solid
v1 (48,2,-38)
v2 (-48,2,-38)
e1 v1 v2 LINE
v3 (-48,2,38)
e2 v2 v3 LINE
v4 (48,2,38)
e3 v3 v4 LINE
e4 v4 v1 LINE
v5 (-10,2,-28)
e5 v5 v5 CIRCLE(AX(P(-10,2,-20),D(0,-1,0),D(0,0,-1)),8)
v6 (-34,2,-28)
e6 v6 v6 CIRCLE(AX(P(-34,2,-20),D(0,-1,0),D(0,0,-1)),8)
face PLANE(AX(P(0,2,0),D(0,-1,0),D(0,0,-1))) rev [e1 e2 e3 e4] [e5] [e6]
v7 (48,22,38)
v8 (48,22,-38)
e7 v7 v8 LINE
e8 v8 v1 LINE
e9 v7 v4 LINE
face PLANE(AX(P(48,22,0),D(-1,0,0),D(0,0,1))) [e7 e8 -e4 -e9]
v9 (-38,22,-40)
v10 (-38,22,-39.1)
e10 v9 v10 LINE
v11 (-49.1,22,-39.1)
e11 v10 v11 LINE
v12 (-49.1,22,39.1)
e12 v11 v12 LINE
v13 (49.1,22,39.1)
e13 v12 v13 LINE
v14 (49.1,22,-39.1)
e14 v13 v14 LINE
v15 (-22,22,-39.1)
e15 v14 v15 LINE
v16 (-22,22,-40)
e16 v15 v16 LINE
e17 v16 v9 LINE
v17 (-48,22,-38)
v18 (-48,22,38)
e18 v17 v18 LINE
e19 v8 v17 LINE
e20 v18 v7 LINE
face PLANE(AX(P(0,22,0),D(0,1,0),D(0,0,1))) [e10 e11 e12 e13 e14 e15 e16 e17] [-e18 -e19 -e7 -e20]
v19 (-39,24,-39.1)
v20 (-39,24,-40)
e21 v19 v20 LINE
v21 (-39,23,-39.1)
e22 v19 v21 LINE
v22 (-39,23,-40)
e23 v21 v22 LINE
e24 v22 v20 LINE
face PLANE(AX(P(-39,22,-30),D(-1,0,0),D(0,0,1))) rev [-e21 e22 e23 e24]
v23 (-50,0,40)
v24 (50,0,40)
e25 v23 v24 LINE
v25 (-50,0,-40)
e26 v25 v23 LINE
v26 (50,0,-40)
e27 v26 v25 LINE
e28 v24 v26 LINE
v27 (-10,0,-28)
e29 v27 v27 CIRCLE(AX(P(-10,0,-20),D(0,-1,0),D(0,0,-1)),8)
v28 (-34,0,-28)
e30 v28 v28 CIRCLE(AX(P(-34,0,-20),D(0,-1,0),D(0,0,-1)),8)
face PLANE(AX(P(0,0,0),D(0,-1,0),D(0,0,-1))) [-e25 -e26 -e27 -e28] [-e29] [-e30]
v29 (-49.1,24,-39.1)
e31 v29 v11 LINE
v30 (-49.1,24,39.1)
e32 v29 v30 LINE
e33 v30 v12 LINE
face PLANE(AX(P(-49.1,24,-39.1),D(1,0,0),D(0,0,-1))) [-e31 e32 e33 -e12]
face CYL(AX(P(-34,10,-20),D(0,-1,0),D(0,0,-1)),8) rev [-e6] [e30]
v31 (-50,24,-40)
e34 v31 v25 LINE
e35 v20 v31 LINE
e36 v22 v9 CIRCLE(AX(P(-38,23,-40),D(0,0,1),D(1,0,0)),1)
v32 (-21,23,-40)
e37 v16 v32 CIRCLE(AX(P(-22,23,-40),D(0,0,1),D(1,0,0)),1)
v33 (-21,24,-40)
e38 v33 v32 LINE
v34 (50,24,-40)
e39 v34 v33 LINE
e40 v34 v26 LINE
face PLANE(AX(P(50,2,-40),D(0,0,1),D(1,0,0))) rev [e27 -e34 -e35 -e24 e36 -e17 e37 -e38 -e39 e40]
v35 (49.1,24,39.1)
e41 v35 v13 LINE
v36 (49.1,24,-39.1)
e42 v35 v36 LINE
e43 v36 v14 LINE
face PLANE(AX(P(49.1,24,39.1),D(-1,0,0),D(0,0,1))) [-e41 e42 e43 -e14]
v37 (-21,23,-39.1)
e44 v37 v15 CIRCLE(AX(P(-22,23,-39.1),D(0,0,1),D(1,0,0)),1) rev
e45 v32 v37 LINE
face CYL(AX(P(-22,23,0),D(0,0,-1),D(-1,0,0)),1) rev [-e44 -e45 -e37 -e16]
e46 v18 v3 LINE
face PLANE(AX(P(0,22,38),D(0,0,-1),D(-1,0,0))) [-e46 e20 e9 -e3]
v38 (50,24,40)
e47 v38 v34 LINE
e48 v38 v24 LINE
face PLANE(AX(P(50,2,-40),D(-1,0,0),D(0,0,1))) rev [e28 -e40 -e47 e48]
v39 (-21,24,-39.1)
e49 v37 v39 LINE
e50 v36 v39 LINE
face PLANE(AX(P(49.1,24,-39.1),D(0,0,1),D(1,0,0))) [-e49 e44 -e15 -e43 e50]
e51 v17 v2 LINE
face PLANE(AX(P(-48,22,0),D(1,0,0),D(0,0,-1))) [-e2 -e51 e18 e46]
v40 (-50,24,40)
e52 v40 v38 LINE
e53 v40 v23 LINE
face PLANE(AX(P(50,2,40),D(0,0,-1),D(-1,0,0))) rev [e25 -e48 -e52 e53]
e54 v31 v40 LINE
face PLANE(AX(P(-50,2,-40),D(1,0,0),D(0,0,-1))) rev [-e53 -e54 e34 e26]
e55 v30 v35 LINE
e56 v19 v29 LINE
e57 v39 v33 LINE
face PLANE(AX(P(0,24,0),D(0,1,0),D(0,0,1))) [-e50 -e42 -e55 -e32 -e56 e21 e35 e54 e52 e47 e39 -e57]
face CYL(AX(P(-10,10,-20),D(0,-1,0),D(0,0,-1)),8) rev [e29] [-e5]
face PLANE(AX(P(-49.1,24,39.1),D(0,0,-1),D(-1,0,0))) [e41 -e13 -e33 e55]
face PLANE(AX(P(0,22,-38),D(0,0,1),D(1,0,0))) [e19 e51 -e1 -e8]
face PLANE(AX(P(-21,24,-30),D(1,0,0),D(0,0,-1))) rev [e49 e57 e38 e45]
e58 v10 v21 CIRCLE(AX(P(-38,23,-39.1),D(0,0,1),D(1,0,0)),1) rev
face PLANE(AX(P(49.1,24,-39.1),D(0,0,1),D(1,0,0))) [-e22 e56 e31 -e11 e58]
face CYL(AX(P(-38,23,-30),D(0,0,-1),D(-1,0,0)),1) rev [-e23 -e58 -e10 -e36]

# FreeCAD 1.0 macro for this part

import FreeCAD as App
import Part
import Sketcher


def edges_at(feature, points):
    """Names of the edges that pass closest to the given points."""
    edges = feature.Shape.Edges
    near = lambda p: min(range(len(edges)), key=lambda i: edges[i].distToShape(Part.Vertex(*p))[0])
    return sorted({f"Edge{near(p) + 1}" for p in points})


def add_polygon(sketch, points):
    """Adds a closed chain of lines whose ends are joined by coincident constraints."""
    first, n = sketch.GeometryCount, len(points)
    for a, b in zip(points, points[1:] + points[:1]):
        sketch.addGeometry(Part.LineSegment(App.Vector(*a, 0), App.Vector(*b, 0)), False)
    for i in range(n):
        sketch.addConstraint(Sketcher.Constraint("Coincident", first + i, 2, first + (i + 1) % n, 1))

doc = App.newDocument("Part")
body = doc.addObject("PartDesign::Body", "Body")

# Sketch on XZ plane
sketch1 = doc.addObject("Sketcher::SketchObject", "Sketch")
body.addObject(sketch1)
sketch1.AttachmentSupport = (doc.XZ_Plane, [""])
sketch1.MapMode = "FlatFace"
add_polygon(sketch1, [(-50, -40), (-50, 40), (50, 40), (50, -40)])  # lines 0-3
sketch1.addConstraint(Sketcher.Constraint("Vertical", 0))
sketch1.addConstraint(Sketcher.Constraint("Horizontal", 1))
sketch1.addConstraint(Sketcher.Constraint("Vertical", 2))
sketch1.addConstraint(Sketcher.Constraint("Horizontal", 3))
sketch1.addConstraint(Sketcher.Constraint("Symmetric", 0, 2, 2, 2, -1, 1))
sketch1.addConstraint(Sketcher.Constraint("DistanceX", 1, 1, 1, 2, 100.0))
sketch1.addConstraint(Sketcher.Constraint("DistanceY", 0, 1, 0, 2, 80.0))
pad1 = doc.addObject("PartDesign::Pad", "Pad")
body.addObject(pad1)
pad1.Profile = sketch1
pad1.Length = 2
pad1.Reversed = True

# Sketch on XZ plane
sketch2 = doc.addObject("Sketcher::SketchObject", "Sketch001")
body.addObject(sketch2)
sketch2.AttachmentSupport = (doc.XZ_Plane, [""])
sketch2.MapMode = "FlatFace"
sketch2.AttachmentOffset = App.Placement(App.Vector(0, 0, -2), App.Rotation())
add_polygon(sketch2, [(-50, -40), (-50, 40), (50, 40), (50, -40)])  # lines 0-3
add_polygon(sketch2, [(48, 38), (-48, 38), (-48, -38), (48, -38)])  # lines 4-7
sketch2.addConstraint(Sketcher.Constraint("Vertical", 0))
sketch2.addConstraint(Sketcher.Constraint("Horizontal", 1))
sketch2.addConstraint(Sketcher.Constraint("Vertical", 2))
sketch2.addConstraint(Sketcher.Constraint("Horizontal", 3))
sketch2.addConstraint(Sketcher.Constraint("Horizontal", 4))
sketch2.addConstraint(Sketcher.Constraint("Vertical", 5))
sketch2.addConstraint(Sketcher.Constraint("Horizontal", 6))
sketch2.addConstraint(Sketcher.Constraint("Vertical", 7))
sketch2.addConstraint(Sketcher.Constraint("Symmetric", 0, 2, 2, 2, -1, 1))
sketch2.addConstraint(Sketcher.Constraint("Symmetric", 4, 2, 6, 2, -1, 1))
sketch2.addConstraint(Sketcher.Constraint("DistanceX", 1, 1, 1, 2, 100.0))
sketch2.addConstraint(Sketcher.Constraint("DistanceX", 4, 2, 4, 1, 96.0))
sketch2.addConstraint(Sketcher.Constraint("DistanceY", 0, 1, 0, 2, 80.0))
sketch2.addConstraint(Sketcher.Constraint("DistanceY", 5, 2, 5, 1, 76.0))
pad2 = doc.addObject("PartDesign::Pad", "Pad001")
body.addObject(pad2)
pad2.Profile = sketch2
pad2.Length = 20
pad2.Reversed = True

# Sketch on XZ plane
sketch3 = doc.addObject("Sketcher::SketchObject", "Sketch002")
body.addObject(sketch3)
sketch3.AttachmentSupport = (doc.XZ_Plane, [""])
sketch3.MapMode = "FlatFace"
sketch3.AttachmentOffset = App.Placement(App.Vector(0, 0, -22), App.Rotation())
add_polygon(sketch3, [(-50, -40), (-50, 40), (50, 40), (50, -40)])  # lines 0-3
add_polygon(sketch3, [(49, 39), (-49, 39), (-49, -39), (49, -39)])  # lines 4-7
sketch3.addConstraint(Sketcher.Constraint("Vertical", 0))
sketch3.addConstraint(Sketcher.Constraint("Horizontal", 1))
sketch3.addConstraint(Sketcher.Constraint("Vertical", 2))
sketch3.addConstraint(Sketcher.Constraint("Horizontal", 3))
sketch3.addConstraint(Sketcher.Constraint("Horizontal", 4))
sketch3.addConstraint(Sketcher.Constraint("Vertical", 5))
sketch3.addConstraint(Sketcher.Constraint("Horizontal", 6))
sketch3.addConstraint(Sketcher.Constraint("Vertical", 7))
sketch3.addConstraint(Sketcher.Constraint("Symmetric", 0, 2, 2, 2, -1, 1))
sketch3.addConstraint(Sketcher.Constraint("Symmetric", 4, 2, 6, 2, -1, 1))
sketch3.addConstraint(Sketcher.Constraint("DistanceX", 1, 1, 1, 2, 100.0))
sketch3.addConstraint(Sketcher.Constraint("DistanceY", 0, 1, 0, 2, 80.0))
sketch3.addConstraint(Sketcher.Constraint("DistanceX", 4, 2, 4, 1, 98.2))
sketch3.addConstraint(Sketcher.Constraint("DistanceY", 5, 2, 5, 1, 78.2))
pad3 = doc.addObject("PartDesign::Pad", "Pad002")
body.addObject(pad3)
pad3.Profile = sketch3
pad3.Length = 2
pad3.Reversed = True

# Sketch on XY plane
sketch4 = doc.addObject("Sketcher::SketchObject", "Sketch003")
body.addObject(sketch4)
sketch4.AttachmentSupport = (doc.XY_Plane, [""])
sketch4.MapMode = "FlatFace"
sketch4.AttachmentOffset = App.Placement(App.Vector(0, 0, -40), App.Rotation())
add_polygon(sketch4, [(-21, 24), (-21, 22), (-39, 22), (-39, 24)])  # lines 0-3
sketch4.addConstraint(Sketcher.Constraint("Vertical", 0))
sketch4.addConstraint(Sketcher.Constraint("Horizontal", 1))
sketch4.addConstraint(Sketcher.Constraint("Vertical", 2))
sketch4.addConstraint(Sketcher.Constraint("Horizontal", 3))
sketch4.addConstraint(Sketcher.Constraint("DistanceX", 1, 2, 1, 1, 18.0))
sketch4.addConstraint(Sketcher.Constraint("DistanceY", 0, 2, 0, 1, 2.0))
sketch4.addConstraint(Sketcher.Constraint("DistanceX", 0, 2, -1, 1, 21.0))
sketch4.addConstraint(Sketcher.Constraint("DistanceY", -1, 1, 0, 2, 22.0))
pocket1 = doc.addObject("PartDesign::Pocket", "Pocket")
body.addObject(pocket1)
pocket1.Profile = sketch4
pocket1.Length = 10
pocket1.Reversed = True
doc.recompute()

fillet = doc.addObject("PartDesign::Fillet", "Fillet")
body.addObject(fillet)
fillet.Base = (pocket1, edges_at(pocket1, [(-39, 22, -39.55), (-21, 22, -39.55)]))
fillet.Radius = 1

# Sketch on XZ plane
sketch5 = doc.addObject("Sketcher::SketchObject", "Sketch004")
body.addObject(sketch5)
sketch5.AttachmentSupport = (doc.XZ_Plane, [""])
sketch5.MapMode = "FlatFace"
sketch5.addGeometry(Part.Circle(App.Vector(-34, -20, 0), App.Vector(0, 0, 1), 8), False)
sketch5.addGeometry(Part.Circle(App.Vector(-10, -20, 0), App.Vector(0, 0, 1), 8), False)
sketch5.addConstraint(Sketcher.Constraint("Equal", 0, 1))
sketch5.addConstraint(Sketcher.Constraint("Horizontal", 0, 3, 1, 3))
sketch5.addConstraint(Sketcher.Constraint("Diameter", 0, 16.0))
sketch5.addConstraint(Sketcher.Constraint("DistanceX", 0, 3, -1, 1, 34.0))
sketch5.addConstraint(Sketcher.Constraint("DistanceY", 0, 3, -1, 1, 20.0))
sketch5.addConstraint(Sketcher.Constraint("DistanceX", 1, 3, -1, 1, 10.0))
pocket2 = doc.addObject("PartDesign::Pocket", "Pocket001")
body.addObject(pocket2)
pocket2.Profile = sketch5
pocket2.Length = 10

doc.recompute()
